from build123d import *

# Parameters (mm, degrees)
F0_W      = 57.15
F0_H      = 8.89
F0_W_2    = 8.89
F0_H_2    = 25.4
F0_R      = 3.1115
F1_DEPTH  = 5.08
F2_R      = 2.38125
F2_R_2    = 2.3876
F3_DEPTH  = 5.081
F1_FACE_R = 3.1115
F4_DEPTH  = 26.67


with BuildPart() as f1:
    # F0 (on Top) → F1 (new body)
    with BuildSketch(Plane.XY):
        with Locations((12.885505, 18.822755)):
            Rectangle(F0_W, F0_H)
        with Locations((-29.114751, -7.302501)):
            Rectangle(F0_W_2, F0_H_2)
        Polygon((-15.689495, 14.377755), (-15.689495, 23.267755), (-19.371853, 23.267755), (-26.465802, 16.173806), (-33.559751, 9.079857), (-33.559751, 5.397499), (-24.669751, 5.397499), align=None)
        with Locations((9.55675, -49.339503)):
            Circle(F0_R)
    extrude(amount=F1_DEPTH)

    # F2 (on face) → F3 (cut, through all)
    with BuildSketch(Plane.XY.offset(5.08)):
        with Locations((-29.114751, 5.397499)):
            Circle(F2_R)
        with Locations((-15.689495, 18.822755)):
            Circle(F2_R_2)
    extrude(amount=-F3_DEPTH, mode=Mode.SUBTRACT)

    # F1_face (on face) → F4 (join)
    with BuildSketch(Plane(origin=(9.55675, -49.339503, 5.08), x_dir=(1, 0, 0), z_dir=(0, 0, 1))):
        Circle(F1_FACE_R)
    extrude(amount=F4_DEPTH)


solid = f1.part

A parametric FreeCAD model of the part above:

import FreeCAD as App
import Part
import Sketcher
from FreeCAD import Vector
Q = App.Units.Quantity

doc = App.newDocument("Part")
body = doc.addObject("PartDesign::Body", "Body")
body.AllowCompound = True

# Sketch on XY plane
sketch1 = body.newObject("Sketcher::SketchObject", "Sketch")
sketch1.AttachmentSupport = (doc.getObject("XY_Plane"), [""])
sketch1.MapMode = "FlatFace"
sketch1.addGeometry([
    Part.LineSegment(Vector(-15.689495, 14.377755, 0), Vector(41.460505, 14.377755, 0)),  # 0
    Part.LineSegment(Vector(41.460505, 14.377755, 0), Vector(41.460505, 23.267755, 0)),  # 1
    Part.LineSegment(Vector(41.460505, 23.267755, 0), Vector(-19.371853, 23.267755, 0)),  # 2
    Part.LineSegment(Vector(-19.371853, 23.267755, 0), Vector(-33.559751, 9.079857, 0)),  # 3
    Part.LineSegment(Vector(-33.559751, 9.079857, 0), Vector(-33.559751, -20.002501, 0)),  # 4
    Part.LineSegment(Vector(-33.559751, -20.002501, 0), Vector(-24.669751, -20.002501, 0)),  # 5
    Part.LineSegment(Vector(-24.669751, -20.002501, 0), Vector(-24.669751, 5.397499, 0)),  # 6
    Part.LineSegment(Vector(-24.669751, 5.397499, 0), Vector(-15.689495, 14.377755, 0)),  # 7
    Part.Circle(Vector(9.55675, -49.339503, 0), Vector(0, 0, 1), 3.1115),  # 8
], False)
sketch1.addConstraint([
    Sketcher.Constraint("Coincident", 0, 2, 1, 1),
    Sketcher.Constraint("Coincident", 1, 2, 2, 1),
    Sketcher.Constraint("Coincident", 2, 2, 3, 1),
    Sketcher.Constraint("Coincident", 3, 2, 4, 1),
    Sketcher.Constraint("Coincident", 4, 2, 5, 1),
    Sketcher.Constraint("Coincident", 5, 2, 6, 1),
    Sketcher.Constraint("Coincident", 6, 2, 7, 1),
    Sketcher.Constraint("Coincident", 7, 2, 0, 1),
    Sketcher.Constraint("Horizontal", 0),
    Sketcher.Constraint("Vertical", 1),
    Sketcher.Constraint("Horizontal", 2),
    Sketcher.Constraint("Vertical", 4),
    Sketcher.Constraint("Horizontal", 5),
    Sketcher.Constraint("Vertical", 6),
    Sketcher.Constraint("Parallel", 3, 7),
    Sketcher.Constraint("Equal", 5, 1),
    Sketcher.Constraint("DistanceY", 6, 1, 6, 2, Q("1 in")),
    Sketcher.Constraint("Diameter", 8, Q("0.245 in")),
    Sketcher.Constraint("Angle", 3, Q("-135 deg")),
    Sketcher.Constraint("Distance", 7, Q("0.5 in")),
    Sketcher.Constraint("DistanceX", 0, 1, 0, 2, Q("2.25 in")),
    Sketcher.Constraint("DistanceX", 5, 1, 5, 2, Q("0.35 in")),
    Sketcher.Constraint("DistanceY", 8, 3, 4, 2, Q("1.1550001 in")),
    Sketcher.Constraint("DistanceY", 8, 3, -1, 1, Q("1.9425001 in")),
    Sketcher.Constraint("DistanceX", 3, 2, 8, 3, Q("1.6975 in")),
    Sketcher.Constraint("DistanceX", 2, 2, 2, 1, 60.832358),
    Sketcher.Constraint("DistanceX", -1, 1, 8, 3, 9.55675),
])
pad1 = body.newObject("PartDesign::Pad", "Pad")
pad1.Profile = sketch1
pad1.Length = Q("0.2 in")

# Sketch on XY plane
sketch2 = body.newObject("Sketcher::SketchObject", "Sketch001")
sketch2.AttachmentSupport = (doc.getObject("XY_Plane"), [""])
sketch2.MapMode = "FlatFace"
sketch2.AttachmentOffset = App.Placement(Vector(0, 0, 0.2 * 25.4), App.Rotation())
sketch2.addGeometry([
    Part.Circle(Vector(-29.114751, 5.397499, 0), Vector(0, 0, 1), 2.38125),
    Part.Circle(Vector(-15.689495, 18.822755, 0), Vector(0, 0, 1), 2.3876),
], False)
sketch2.addConstraint([
    Sketcher.Constraint("Diameter", 0, Q("0.1875 in")),
    Sketcher.Constraint("Diameter", 1, Q("0.188 in")),
    Sketcher.Constraint("DistanceY", -1, 1, 0, 3, Q("0.2125 in")),
    Sketcher.Constraint("DistanceX", 0, 3, -1, 1, 29.114751),
    Sketcher.Constraint("DistanceX", 1, 3, -1, 1, 15.689495),
    Sketcher.Constraint("DistanceY", -1, 1, 1, 3, 18.822755),
])
pocket1 = body.newObject("PartDesign::Pocket", "Pocket")
pocket1.Profile = sketch2
pocket1.Type = "ThroughAll"

# Sketch on XY plane
sketch3 = body.newObject("Sketcher::SketchObject", "Sketch002")
sketch3.AttachmentSupport = (doc.getObject("XY_Plane"), [""])
sketch3.MapMode = "FlatFace"
sketch3.AttachmentOffset = App.Placement(Vector(0, 0, 0.2 * 25.4), App.Rotation())
sketch3.addGeometry(Part.Circle(Vector(9.55675, -49.339503, 0), Vector(0, 0, 1), 3.1115), False)
sketch3.addConstraint([
    Sketcher.Constraint("Diameter", 0, Q("0.245 in")),
    Sketcher.Constraint("DistanceY", 0, 3, -1, 1, Q("1.9425001 in")),
    Sketcher.Constraint("DistanceX", -1, 1, 0, 3, 9.55675),
])
pad2 = body.newObject("PartDesign::Pad", "Pad001")
pad2.Profile = sketch3
pad2.Length = Q("1.05 in")

doc.recompute()
